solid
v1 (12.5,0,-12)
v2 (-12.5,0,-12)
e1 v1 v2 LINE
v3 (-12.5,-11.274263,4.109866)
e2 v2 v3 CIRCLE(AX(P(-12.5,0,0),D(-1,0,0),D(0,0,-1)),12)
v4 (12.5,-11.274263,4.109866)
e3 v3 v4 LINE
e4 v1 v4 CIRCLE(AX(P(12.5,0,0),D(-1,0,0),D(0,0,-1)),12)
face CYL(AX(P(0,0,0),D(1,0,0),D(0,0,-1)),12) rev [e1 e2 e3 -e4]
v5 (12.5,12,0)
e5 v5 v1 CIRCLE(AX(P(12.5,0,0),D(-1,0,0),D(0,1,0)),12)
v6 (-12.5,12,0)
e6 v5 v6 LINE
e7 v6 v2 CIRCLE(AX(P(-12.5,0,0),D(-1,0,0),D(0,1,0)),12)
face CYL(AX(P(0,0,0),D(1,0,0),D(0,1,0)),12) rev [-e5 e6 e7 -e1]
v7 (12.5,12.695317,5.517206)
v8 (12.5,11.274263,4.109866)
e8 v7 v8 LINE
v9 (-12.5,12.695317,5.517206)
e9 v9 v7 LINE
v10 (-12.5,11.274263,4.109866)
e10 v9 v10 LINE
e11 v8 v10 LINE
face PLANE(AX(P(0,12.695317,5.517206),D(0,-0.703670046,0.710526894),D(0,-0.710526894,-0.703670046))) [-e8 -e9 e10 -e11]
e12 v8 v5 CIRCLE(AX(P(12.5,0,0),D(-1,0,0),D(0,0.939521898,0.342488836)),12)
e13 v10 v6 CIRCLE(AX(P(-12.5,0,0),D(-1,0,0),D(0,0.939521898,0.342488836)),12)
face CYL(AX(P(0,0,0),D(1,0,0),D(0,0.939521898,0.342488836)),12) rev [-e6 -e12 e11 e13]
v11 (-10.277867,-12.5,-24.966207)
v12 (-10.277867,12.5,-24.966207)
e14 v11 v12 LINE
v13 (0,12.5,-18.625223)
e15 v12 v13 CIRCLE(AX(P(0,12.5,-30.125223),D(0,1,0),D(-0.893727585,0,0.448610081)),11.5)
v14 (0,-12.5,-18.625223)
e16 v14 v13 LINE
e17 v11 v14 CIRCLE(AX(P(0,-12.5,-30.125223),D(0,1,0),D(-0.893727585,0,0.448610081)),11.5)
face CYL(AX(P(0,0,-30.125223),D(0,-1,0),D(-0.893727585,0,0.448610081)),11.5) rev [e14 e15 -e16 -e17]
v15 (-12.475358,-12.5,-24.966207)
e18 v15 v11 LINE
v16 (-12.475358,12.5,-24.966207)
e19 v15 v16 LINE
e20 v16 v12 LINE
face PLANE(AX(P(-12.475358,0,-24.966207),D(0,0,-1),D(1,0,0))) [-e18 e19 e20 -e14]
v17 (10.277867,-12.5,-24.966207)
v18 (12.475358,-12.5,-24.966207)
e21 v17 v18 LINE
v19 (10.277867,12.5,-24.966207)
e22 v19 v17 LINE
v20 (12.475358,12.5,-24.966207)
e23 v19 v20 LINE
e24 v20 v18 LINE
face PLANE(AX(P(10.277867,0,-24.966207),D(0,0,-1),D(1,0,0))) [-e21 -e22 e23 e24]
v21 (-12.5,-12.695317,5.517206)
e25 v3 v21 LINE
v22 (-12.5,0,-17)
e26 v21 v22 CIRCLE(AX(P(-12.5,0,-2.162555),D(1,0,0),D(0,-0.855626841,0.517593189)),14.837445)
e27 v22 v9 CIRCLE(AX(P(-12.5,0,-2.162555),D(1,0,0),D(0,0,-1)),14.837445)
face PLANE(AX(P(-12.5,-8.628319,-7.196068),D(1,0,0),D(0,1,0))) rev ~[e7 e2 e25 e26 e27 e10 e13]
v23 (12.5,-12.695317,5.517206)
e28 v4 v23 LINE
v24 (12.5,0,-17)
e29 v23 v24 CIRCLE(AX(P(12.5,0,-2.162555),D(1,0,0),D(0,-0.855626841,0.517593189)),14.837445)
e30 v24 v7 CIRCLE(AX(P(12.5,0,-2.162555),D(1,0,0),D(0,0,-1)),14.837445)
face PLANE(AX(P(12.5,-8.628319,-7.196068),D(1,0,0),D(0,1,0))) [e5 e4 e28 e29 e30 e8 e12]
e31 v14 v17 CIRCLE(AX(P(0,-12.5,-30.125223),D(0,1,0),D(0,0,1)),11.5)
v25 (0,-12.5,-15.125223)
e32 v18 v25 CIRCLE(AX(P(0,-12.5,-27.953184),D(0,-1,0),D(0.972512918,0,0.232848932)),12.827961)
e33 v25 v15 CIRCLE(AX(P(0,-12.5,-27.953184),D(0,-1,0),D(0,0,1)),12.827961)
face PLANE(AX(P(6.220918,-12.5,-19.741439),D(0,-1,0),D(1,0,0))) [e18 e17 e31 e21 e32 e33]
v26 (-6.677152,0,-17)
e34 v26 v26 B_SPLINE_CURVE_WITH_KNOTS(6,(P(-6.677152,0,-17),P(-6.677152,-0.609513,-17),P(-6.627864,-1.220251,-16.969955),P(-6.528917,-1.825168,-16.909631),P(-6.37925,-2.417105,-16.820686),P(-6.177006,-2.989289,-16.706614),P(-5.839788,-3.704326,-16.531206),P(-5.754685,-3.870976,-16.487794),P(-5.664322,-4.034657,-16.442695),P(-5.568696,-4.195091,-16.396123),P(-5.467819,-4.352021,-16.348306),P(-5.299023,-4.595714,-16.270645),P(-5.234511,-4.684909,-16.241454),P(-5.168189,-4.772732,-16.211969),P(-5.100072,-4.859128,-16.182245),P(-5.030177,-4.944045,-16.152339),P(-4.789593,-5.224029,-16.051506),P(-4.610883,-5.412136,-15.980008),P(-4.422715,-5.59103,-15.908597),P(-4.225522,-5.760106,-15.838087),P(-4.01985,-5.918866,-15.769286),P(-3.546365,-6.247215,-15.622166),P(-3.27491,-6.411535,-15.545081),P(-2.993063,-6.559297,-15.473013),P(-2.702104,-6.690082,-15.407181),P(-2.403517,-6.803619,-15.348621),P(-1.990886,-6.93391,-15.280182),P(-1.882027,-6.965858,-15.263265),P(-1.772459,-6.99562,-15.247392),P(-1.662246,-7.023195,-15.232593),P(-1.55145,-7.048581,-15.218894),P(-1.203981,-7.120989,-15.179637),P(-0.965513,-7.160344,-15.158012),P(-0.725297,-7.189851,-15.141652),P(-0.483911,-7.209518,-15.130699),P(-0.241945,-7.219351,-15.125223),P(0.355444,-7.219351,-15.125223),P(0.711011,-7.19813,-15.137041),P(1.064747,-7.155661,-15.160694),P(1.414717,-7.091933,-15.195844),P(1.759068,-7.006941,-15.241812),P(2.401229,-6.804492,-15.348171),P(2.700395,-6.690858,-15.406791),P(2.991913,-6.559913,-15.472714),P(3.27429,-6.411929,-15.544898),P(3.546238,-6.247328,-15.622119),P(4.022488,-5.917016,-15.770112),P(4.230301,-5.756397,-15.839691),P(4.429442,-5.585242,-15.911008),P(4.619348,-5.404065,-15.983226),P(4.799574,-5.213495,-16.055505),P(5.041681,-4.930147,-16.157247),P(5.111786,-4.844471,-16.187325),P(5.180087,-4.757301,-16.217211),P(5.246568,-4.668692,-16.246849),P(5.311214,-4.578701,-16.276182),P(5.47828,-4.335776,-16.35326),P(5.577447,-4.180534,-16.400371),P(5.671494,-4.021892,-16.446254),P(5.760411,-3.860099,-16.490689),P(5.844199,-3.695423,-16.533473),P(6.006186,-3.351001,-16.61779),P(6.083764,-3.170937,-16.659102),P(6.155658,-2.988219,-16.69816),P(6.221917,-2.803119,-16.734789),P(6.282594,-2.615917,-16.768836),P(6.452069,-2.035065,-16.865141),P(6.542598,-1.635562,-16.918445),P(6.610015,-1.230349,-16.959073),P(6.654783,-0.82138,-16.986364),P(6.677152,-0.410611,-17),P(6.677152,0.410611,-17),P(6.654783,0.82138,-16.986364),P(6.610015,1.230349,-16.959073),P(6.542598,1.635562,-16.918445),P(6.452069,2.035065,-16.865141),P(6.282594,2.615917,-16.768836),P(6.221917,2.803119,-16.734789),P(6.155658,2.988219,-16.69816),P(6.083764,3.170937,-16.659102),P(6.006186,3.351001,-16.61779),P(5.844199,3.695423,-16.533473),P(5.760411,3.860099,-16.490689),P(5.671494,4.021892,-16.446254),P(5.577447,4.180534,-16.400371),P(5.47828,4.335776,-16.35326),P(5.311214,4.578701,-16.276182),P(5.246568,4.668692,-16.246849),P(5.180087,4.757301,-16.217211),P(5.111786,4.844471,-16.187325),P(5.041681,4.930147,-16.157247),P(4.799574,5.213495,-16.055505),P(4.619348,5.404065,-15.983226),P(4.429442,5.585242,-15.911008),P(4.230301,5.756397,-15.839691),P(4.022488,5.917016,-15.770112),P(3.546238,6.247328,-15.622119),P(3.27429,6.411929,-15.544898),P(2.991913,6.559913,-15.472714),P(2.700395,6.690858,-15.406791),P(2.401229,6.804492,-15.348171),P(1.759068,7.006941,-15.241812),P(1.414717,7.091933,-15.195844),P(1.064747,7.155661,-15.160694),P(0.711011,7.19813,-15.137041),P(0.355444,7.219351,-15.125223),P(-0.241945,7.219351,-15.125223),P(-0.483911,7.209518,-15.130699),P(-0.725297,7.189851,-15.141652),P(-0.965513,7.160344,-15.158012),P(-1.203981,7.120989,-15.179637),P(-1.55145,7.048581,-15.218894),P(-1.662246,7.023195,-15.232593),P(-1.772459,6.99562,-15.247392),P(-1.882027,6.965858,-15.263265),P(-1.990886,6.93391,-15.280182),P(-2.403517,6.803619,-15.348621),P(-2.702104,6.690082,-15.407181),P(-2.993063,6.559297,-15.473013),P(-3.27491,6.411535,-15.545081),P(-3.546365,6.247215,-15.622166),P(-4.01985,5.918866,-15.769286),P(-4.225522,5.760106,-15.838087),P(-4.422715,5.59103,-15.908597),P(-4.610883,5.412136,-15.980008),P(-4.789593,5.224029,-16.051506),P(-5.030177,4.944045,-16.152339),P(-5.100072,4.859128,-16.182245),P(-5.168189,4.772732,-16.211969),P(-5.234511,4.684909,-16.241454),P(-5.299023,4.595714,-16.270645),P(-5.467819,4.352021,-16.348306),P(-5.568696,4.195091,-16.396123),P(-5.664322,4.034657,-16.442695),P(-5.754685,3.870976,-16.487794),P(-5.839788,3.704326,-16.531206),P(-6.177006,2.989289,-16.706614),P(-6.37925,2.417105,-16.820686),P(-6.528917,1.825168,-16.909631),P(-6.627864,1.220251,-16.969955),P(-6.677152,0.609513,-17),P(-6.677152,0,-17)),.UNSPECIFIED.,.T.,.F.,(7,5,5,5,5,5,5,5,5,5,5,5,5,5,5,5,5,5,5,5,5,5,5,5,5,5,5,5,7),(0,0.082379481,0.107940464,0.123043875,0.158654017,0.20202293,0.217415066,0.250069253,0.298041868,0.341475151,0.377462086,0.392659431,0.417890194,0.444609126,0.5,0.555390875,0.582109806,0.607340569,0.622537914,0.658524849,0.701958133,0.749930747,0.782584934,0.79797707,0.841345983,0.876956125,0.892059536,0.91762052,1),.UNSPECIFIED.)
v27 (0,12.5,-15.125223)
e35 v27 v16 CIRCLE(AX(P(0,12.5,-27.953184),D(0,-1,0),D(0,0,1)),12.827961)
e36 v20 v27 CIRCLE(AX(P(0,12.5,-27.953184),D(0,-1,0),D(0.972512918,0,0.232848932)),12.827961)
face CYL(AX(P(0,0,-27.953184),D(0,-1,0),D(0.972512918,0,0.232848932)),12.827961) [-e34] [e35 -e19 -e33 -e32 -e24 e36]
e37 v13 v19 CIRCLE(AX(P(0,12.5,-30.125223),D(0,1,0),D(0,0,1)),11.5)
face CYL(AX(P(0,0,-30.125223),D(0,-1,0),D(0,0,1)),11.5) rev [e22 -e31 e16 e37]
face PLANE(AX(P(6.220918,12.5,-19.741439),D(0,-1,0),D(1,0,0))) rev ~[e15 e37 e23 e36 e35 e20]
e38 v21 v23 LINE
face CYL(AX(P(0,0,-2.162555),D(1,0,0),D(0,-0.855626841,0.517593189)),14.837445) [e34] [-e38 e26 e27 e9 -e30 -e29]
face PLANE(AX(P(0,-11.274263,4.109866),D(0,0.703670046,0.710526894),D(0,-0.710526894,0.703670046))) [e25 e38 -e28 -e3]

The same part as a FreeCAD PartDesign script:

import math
import FreeCAD as App
import Part
import Sketcher
Q = App.Units.Quantity

doc = App.newDocument("Part")
body = doc.addObject("PartDesign::Body", "Body")

# Sketch on YZ plane
sketch1 = body.newObject("Sketcher::SketchObject", "Sketch")
sketch1.AttachmentSupport = (doc.getObject("YZ_Plane"), [""])
sketch1.MapMode = "FlatFace"
sketch1.addGeometry([
    Part.ArcOfCircle(Part.Circle(App.Vector(0, 0, 0), App.Vector(0, 0, 1), 12), math.radians(159.97142), math.radians(270)),  # 0
    Part.LineSegment(App.Vector(-11.274263, 4.109866, 0), App.Vector(-12.695317, 5.517206, 0)),  # 1
    Part.ArcOfCircle(Part.Circle(App.Vector(0, -2.162555, 0), App.Vector(0, 0, 1), 14.837445), math.radians(148.829055), math.radians(270)),  # 2
    Part.ArcOfCircle(Part.Circle(App.Vector(0, -2.162555, 0), App.Vector(0, 0, 1), 14.837445), math.radians(-90), math.radians(31.170945)),  # 3
    Part.LineSegment(App.Vector(12.695317, 5.517206, 0), App.Vector(11.274263, 4.109866, 0)),  # 4
    Part.ArcOfCircle(Part.Circle(App.Vector(0, 0, 0), App.Vector(0, 0, 1), 12), math.radians(0), math.radians(20.02858)),  # 5
    Part.ArcOfCircle(Part.Circle(App.Vector(0, 0, 0), App.Vector(0, 0, 1), 12), math.radians(-90), math.radians(0)),  # 6
], False)
sketch1.addConstraint([
    Sketcher.Constraint("Coincident", 0, 1, 1, 1),
    Sketcher.Constraint("Coincident", 1, 2, 2, 1),
    Sketcher.Constraint("Tangent", 2, 2, 3, 1),
    Sketcher.Constraint("Coincident", 3, 2, 4, 1),
    Sketcher.Constraint("Coincident", 4, 2, 5, 2),
    Sketcher.Constraint("Tangent", 5, 1, 6, 2),
    Sketcher.Constraint("Tangent", 6, 1, 0, 2),
    Sketcher.Constraint("Coincident", 0, 3, -1, 1),
    Sketcher.Constraint("Coincident", 5, 3, -1, 1),
    Sketcher.Constraint("Equal", 2, 3),
    Sketcher.Constraint("Symmetric", 1, 2, 3, 2, -2),
    Sketcher.Constraint("PointOnObject", 2, 2, -2),
    Sketcher.Constraint("PointOnObject", 5, 1, -1),
    Sketcher.Constraint("PointOnObject", 6, 1, -2),
    Sketcher.Constraint("Horizontal", 0, 1, 4, 2),
    Sketcher.Constraint("Radius", 0, Q("12 mm")),
    Sketcher.Constraint("Distance", 1, Q("2 mm")),
    Sketcher.Constraint("DistanceY", 2, 2, -1, 1, Q("17 mm")),
    Sketcher.Constraint("Radius", 2, Q("14.837445 mm")),
    Sketcher.Constraint("DistanceY", 2, 3, 0, 1, Q("6.272421 mm")),
])
pad1 = body.newObject("PartDesign::Pad", "Pad")
pad1.Profile = sketch1
pad1.Length = 25
pad1.Midplane = True

# Sketch on XZ plane
sketch2 = body.newObject("Sketcher::SketchObject", "Sketch001")
sketch2.AttachmentSupport = (doc.getObject("XZ_Plane"), [""])
sketch2.MapMode = "FlatFace"
sketch2.addGeometry([
    Part.ArcOfCircle(Part.Circle(App.Vector(0, -30.125223, 0), App.Vector(0, 0, 1), 11.5), math.radians(26.654543), math.radians(90)),  # 0
    Part.LineSegment(App.Vector(10.277867, -24.966207, 0), App.Vector(12.475358, -24.966207, 0)),  # 1
    Part.ArcOfCircle(Part.Circle(App.Vector(0, -27.953184, 0), App.Vector(0, 0, 1), 12.827961), math.radians(13.464859), math.radians(90)),  # 2
    Part.ArcOfCircle(Part.Circle(App.Vector(0, -27.953184, 0), App.Vector(0, 0, 1), 12.827961), math.radians(90), math.radians(166.535141)),  # 3
    Part.LineSegment(App.Vector(-12.475358, -24.966207, 0), App.Vector(-10.277867, -24.966207, 0)),  # 4
    Part.ArcOfCircle(Part.Circle(App.Vector(0, -30.125223, 0), App.Vector(0, 0, 1), 11.5), math.radians(90), math.radians(153.345457)),  # 5
], False)
sketch2.addConstraint([
    Sketcher.Constraint("Coincident", 0, 1, 1, 1),
    Sketcher.Constraint("Coincident", 1, 2, 2, 1),
    Sketcher.Constraint("Tangent", 2, 2, 3, 1),
    Sketcher.Constraint("Coincident", 3, 2, 4, 1),
    Sketcher.Constraint("Coincident", 4, 2, 5, 2),
    Sketcher.Constraint("Tangent", 5, 1, 0, 2),
    Sketcher.Constraint("Horizontal", 1),
    Sketcher.Constraint("Horizontal", 4),
    Sketcher.Constraint("Equal", 2, 3),
    Sketcher.Constraint("Equal", 0, 5),
    Sketcher.Constraint("Symmetric", 1, 2, 3, 2, -2),
    Sketcher.Constraint("PointOnObject", 0, 3, -2),
    Sketcher.Constraint("PointOnObject", 2, 2, -2),
    Sketcher.Constraint("PointOnObject", 5, 1, -2),
    Sketcher.Constraint("Radius", 0, Q("11.5 mm")),
    Sketcher.Constraint("DistanceY", 0, 3, 2, 2, Q("15 mm")),
    Sketcher.Constraint("Radius", 2, Q("12.827961 mm")),
    Sketcher.Constraint("DistanceX", 1, 1, 1, 2, Q("2.197491 mm")),
    Sketcher.Constraint("DistanceY", 0, 3, -1, 1, Q("30.125223 mm")),
])
pad2 = body.newObject("PartDesign::Pad", "Pad001")
pad2.Profile = sketch2
pad2.Length = 25
pad2.Midplane = True

doc.recompute()
